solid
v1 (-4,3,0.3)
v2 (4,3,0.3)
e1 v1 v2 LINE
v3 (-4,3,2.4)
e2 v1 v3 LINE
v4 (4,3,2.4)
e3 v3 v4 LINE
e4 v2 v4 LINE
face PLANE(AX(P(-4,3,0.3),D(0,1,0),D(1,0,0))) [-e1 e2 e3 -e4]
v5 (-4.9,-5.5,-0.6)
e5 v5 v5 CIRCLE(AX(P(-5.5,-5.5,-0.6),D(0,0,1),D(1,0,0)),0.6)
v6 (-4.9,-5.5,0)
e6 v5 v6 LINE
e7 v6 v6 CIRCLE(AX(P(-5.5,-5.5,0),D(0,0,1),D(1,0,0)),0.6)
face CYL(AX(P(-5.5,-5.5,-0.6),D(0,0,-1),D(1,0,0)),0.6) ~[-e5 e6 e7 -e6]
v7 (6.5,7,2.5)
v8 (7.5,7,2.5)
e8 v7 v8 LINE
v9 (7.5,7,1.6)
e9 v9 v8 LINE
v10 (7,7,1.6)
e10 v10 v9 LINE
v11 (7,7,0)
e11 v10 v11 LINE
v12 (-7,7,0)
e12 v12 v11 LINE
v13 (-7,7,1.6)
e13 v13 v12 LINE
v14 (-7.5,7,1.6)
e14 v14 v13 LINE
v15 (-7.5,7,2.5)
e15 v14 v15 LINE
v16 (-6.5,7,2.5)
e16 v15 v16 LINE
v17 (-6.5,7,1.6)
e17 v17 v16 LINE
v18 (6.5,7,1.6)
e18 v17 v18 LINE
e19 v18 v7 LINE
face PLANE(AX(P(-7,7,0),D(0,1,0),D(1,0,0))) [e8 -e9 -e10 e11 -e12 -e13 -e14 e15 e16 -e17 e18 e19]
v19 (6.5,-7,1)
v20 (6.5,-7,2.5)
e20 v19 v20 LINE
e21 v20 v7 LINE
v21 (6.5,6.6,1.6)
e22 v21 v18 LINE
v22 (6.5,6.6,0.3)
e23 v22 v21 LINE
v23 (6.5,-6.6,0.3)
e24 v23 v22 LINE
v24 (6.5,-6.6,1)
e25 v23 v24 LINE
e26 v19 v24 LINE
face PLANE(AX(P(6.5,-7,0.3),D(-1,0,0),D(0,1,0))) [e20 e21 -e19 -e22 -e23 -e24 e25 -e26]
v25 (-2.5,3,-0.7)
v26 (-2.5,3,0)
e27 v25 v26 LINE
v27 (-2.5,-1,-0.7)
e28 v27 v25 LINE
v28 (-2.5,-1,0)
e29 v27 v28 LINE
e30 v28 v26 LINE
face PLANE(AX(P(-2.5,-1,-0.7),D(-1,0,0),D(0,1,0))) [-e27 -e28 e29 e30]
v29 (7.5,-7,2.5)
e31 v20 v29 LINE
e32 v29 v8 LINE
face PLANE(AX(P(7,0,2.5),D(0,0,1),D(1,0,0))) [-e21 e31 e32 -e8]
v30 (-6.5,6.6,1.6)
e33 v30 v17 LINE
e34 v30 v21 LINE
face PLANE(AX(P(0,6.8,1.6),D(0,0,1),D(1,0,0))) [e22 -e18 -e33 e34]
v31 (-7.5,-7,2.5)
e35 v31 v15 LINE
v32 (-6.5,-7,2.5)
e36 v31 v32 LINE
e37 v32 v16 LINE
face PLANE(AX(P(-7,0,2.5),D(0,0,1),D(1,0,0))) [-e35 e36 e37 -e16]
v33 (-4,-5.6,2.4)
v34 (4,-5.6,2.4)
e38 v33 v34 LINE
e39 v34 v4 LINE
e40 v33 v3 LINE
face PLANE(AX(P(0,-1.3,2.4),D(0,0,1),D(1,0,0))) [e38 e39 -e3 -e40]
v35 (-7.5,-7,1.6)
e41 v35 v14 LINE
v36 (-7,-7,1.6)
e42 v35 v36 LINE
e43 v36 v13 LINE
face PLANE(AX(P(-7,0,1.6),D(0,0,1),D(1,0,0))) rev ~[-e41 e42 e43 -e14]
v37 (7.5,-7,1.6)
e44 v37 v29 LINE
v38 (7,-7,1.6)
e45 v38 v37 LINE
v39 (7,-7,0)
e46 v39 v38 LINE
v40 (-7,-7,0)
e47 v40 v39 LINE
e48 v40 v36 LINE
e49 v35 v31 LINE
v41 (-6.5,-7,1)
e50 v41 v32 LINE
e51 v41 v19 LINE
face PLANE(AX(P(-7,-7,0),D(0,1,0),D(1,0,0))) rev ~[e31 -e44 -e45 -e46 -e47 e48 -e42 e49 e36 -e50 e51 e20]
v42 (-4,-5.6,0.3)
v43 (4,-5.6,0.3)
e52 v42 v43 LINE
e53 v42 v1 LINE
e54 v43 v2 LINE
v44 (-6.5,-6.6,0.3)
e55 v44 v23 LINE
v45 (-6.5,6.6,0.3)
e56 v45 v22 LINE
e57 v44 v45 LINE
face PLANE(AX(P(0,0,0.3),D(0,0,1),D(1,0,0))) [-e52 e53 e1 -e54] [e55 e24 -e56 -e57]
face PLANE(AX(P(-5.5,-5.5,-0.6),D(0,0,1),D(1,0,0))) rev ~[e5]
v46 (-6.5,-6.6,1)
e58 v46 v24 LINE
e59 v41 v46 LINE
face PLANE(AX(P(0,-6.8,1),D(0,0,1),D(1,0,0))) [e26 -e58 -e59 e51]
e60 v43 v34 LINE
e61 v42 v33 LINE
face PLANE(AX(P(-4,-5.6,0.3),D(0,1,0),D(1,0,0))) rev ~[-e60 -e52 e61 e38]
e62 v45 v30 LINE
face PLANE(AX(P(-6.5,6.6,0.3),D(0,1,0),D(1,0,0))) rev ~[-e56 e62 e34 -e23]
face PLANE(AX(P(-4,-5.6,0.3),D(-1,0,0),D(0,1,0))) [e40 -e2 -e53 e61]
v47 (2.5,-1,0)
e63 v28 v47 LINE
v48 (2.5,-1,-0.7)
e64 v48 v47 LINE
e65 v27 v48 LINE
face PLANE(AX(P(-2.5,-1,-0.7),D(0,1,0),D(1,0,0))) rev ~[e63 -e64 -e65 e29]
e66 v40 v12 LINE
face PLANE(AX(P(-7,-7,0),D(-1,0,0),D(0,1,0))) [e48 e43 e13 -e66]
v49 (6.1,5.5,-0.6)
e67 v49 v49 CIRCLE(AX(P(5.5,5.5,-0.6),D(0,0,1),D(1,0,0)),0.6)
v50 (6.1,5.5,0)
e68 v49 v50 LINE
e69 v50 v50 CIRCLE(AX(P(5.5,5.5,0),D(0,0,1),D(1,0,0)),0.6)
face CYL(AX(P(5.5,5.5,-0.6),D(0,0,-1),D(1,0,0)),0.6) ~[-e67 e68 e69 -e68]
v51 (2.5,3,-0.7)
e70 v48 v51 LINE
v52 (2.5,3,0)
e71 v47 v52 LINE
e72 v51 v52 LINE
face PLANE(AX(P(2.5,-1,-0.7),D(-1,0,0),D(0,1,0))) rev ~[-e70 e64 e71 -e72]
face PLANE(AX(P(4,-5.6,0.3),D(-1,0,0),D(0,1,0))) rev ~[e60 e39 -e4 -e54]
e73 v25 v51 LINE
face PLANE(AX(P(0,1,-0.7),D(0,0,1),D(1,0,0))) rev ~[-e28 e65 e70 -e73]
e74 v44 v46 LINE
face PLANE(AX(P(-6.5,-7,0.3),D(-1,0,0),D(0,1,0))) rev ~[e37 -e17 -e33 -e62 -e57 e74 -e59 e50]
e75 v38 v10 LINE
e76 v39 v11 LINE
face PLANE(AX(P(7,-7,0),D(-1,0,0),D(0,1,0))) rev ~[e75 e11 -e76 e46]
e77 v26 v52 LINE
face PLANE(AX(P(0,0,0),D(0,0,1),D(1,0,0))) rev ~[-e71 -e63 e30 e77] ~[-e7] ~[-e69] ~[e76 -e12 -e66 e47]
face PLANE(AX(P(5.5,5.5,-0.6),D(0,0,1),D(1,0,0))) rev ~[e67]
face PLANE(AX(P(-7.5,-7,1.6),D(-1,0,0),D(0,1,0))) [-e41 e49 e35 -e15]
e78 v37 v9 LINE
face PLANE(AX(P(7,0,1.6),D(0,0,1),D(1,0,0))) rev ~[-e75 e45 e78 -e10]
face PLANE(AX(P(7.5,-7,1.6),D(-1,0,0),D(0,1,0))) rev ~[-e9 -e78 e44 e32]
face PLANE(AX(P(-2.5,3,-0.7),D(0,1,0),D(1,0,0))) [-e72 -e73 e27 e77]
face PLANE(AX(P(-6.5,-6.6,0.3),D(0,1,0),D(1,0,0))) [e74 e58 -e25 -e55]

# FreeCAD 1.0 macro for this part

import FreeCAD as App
import Part
import Sketcher
from FreeCAD import Vector
Q = App.Units.Quantity

doc = App.newDocument("Part")
body = doc.addObject("PartDesign::Body", "Body")

# Sketch on XY plane
sketch1 = body.newObject("Sketcher::SketchObject", "Sketch")
sketch1.AttachmentSupport = (doc.getObject("XY_Plane"), [""])
sketch1.MapMode = "FlatFace"
sketch1.AttachmentOffset = App.Placement(Vector(0, 0, 0.3), App.Rotation())
sketch1.addGeometry([
    Part.LineSegment(Vector(-6.5, -6.6, 0), Vector(-6.5, -7, 0)),
    Part.LineSegment(Vector(-6.5, -7, 0), Vector(6.5, -7, 0)),
    Part.LineSegment(Vector(6.5, -7, 0), Vector(6.5, -6.6, 0)),
    Part.LineSegment(Vector(6.5, -6.6, 0), Vector(-6.5, -6.6, 0)),
], False)
sketch1.addConstraint([
    Sketcher.Constraint("Coincident", 0, 2, 1, 1),
    Sketcher.Constraint("Coincident", 1, 2, 2, 1),
    Sketcher.Constraint("Coincident", 2, 2, 3, 1),
    Sketcher.Constraint("Coincident", 3, 2, 0, 1),
    Sketcher.Constraint("Vertical", 0),
    Sketcher.Constraint("Horizontal", 1),
    Sketcher.Constraint("Vertical", 2),
    Sketcher.Constraint("Horizontal", 3),
    Sketcher.Constraint("DistanceX", 1, 1, 1, 2, Q("13 mm")),
    Sketcher.Constraint("DistanceY", 0, 2, 0, 1, Q("0.4 mm")),
    Sketcher.Constraint("DistanceY", 0, 2, -1, 1, Q("7 mm")),
    Sketcher.Constraint("DistanceX", 0, 2, -1, 1, Q("6.5 mm")),
])
pad1 = body.newObject("PartDesign::Pad", "Pad")
pad1.Profile = sketch1
pad1.Length = 0.7
body2 = doc.addObject("PartDesign::Body", "Body001")

# Sketch on XY plane
sketch2 = body2.newObject("Sketcher::SketchObject", "Sketch001")
sketch2.AttachmentSupport = (doc.getObject("XY_Plane001"), [""])
sketch2.MapMode = "FlatFace"
sketch2.AttachmentOffset = App.Placement(Vector(0, 0, 0.3), App.Rotation())
sketch2.addGeometry([
    Part.LineSegment(Vector(-6.5, 7, 0), Vector(-6.5, 6.6, 0)),
    Part.LineSegment(Vector(-6.5, 6.6, 0), Vector(6.5, 6.6, 0)),
    Part.LineSegment(Vector(6.5, 6.6, 0), Vector(6.5, 7, 0)),
    Part.LineSegment(Vector(6.5, 7, 0), Vector(-6.5, 7, 0)),
], False)
sketch2.addConstraint([
    Sketcher.Constraint("Coincident", 0, 2, 1, 1),
    Sketcher.Constraint("Coincident", 1, 2, 2, 1),
    Sketcher.Constraint("Coincident", 2, 2, 3, 1),
    Sketcher.Constraint("Coincident", 3, 2, 0, 1),
    Sketcher.Constraint("Vertical", 0),
    Sketcher.Constraint("Horizontal", 1),
    Sketcher.Constraint("Vertical", 2),
    Sketcher.Constraint("Horizontal", 3),
    Sketcher.Constraint("DistanceX", 1, 1, 1, 2, Q("13 mm")),
    Sketcher.Constraint("DistanceY", 0, 2, 0, 1, Q("0.4 mm")),
    Sketcher.Constraint("DistanceY", -1, 1, 2, 2, Q("7 mm")),
    Sketcher.Constraint("DistanceX", 0, 2, -1, 1, Q("6.5 mm")),
])
pad2 = body2.newObject("PartDesign::Pad", "Pad001")
pad2.Profile = sketch2
pad2.Length = 1.3
body3 = doc.addObject("PartDesign::Body", "Body002")

# Sketch on XY plane
sketch3 = body3.newObject("Sketcher::SketchObject", "Sketch002")
sketch3.AttachmentSupport = (doc.getObject("XY_Plane002"), [""])
sketch3.MapMode = "FlatFace"
sketch3.AttachmentOffset = App.Placement(Vector(0, 0, 1.6), App.Rotation())
sketch3.addGeometry([
    Part.LineSegment(Vector(6.5, 7, 0), Vector(6.5, -7, 0)),
    Part.LineSegment(Vector(6.5, -7, 0), Vector(7.5, -7, 0)),
    Part.LineSegment(Vector(7.5, -7, 0), Vector(7.5, 7, 0)),
    Part.LineSegment(Vector(7.5, 7, 0), Vector(6.5, 7, 0)),
], False)
sketch3.addConstraint([
    Sketcher.Constraint("Coincident", 0, 2, 1, 1),
    Sketcher.Constraint("Coincident", 1, 2, 2, 1),
    Sketcher.Constraint("Coincident", 2, 2, 3, 1),
    Sketcher.Constraint("Coincident", 3, 2, 0, 1),
    Sketcher.Constraint("Vertical", 0),
    Sketcher.Constraint("Horizontal", 1),
    Sketcher.Constraint("Vertical", 2),
    Sketcher.Constraint("Horizontal", 3),
    Sketcher.Constraint("DistanceX", 1, 1, 1, 2, Q("1 mm")),
    Sketcher.Constraint("DistanceY", 0, 2, 0, 1, Q("14 mm")),
    Sketcher.Constraint("DistanceY", 0, 2, -1, 1, Q("7 mm")),
    Sketcher.Constraint("DistanceX", -1, 1, 0, 2, Q("6.5 mm")),
])
pad3 = body3.newObject("PartDesign::Pad", "Pad002")
pad3.Profile = sketch3
pad3.Length = 0.9
body4 = doc.addObject("PartDesign::Body", "Body003")

# Sketch on XY plane
sketch4 = body4.newObject("Sketcher::SketchObject", "Sketch003")
sketch4.AttachmentSupport = (doc.getObject("XY_Plane003"), [""])
sketch4.MapMode = "FlatFace"
sketch4.AttachmentOffset = App.Placement(Vector(0, 0, 1.6), App.Rotation())
sketch4.addGeometry([
    Part.LineSegment(Vector(-7.5, 7, 0), Vector(-7.5, -7, 0)),
    Part.LineSegment(Vector(-7.5, -7, 0), Vector(-6.5, -7, 0)),
    Part.LineSegment(Vector(-6.5, -7, 0), Vector(-6.5, 7, 0)),
    Part.LineSegment(Vector(-6.5, 7, 0), Vector(-7.5, 7, 0)),
], False)
sketch4.addConstraint([
    Sketcher.Constraint("Coincident", 0, 2, 1, 1),
    Sketcher.Constraint("Coincident", 1, 2, 2, 1),
    Sketcher.Constraint("Coincident", 2, 2, 3, 1),
    Sketcher.Constraint("Coincident", 3, 2, 0, 1),
    Sketcher.Constraint("Vertical", 0),
    Sketcher.Constraint("Horizontal", 1),
    Sketcher.Constraint("Vertical", 2),
    Sketcher.Constraint("Horizontal", 3),
    Sketcher.Constraint("DistanceX", 1, 1, 1, 2, Q("1 mm")),
    Sketcher.Constraint("DistanceY", 0, 2, 0, 1, Q("14 mm")),
    Sketcher.Constraint("DistanceY", 0, 2, -1, 1, Q("7 mm")),
    Sketcher.Constraint("DistanceX", 0, 2, -1, 1, Q("7.5 mm")),
])
pad4 = body4.newObject("PartDesign::Pad", "Pad003")
pad4.Profile = sketch4
pad4.Length = 0.9
body5 = doc.addObject("PartDesign::Body", "Body004")

# Sketch on XY plane
sketch5 = body5.newObject("Sketcher::SketchObject", "Sketch004")
sketch5.AttachmentSupport = (doc.getObject("XY_Plane004"), [""])
sketch5.MapMode = "FlatFace"
sketch5.AttachmentOffset = App.Placement(Vector(0, 0, 0.3), App.Rotation())
sketch5.addGeometry([
    Part.LineSegment(Vector(6.5, 7, 0), Vector(6.5, -7, 0)),
    Part.LineSegment(Vector(6.5, -7, 0), Vector(7, -7, 0)),
    Part.LineSegment(Vector(7, -7, 0), Vector(7, 7, 0)),
    Part.LineSegment(Vector(7, 7, 0), Vector(6.5, 7, 0)),
], False)
sketch5.addConstraint([
    Sketcher.Constraint("Coincident", 0, 2, 1, 1),
    Sketcher.Constraint("Coincident", 1, 2, 2, 1),
    Sketcher.Constraint("Coincident", 2, 2, 3, 1),
    Sketcher.Constraint("Coincident", 3, 2, 0, 1),
    Sketcher.Constraint("Vertical", 0),
    Sketcher.Constraint("Horizontal", 1),
    Sketcher.Constraint("Vertical", 2),
    Sketcher.Constraint("Horizontal", 3),
    Sketcher.Constraint("DistanceY", 0, 2, 0, 1, Q("14 mm")),
    Sketcher.Constraint("DistanceX", 1, 1, 1, 2, Q("0.5 mm")),
    Sketcher.Constraint("DistanceY", 0, 2, -1, 1, Q("7 mm")),
    Sketcher.Constraint("DistanceX", -1, 1, 1, 2, Q("7 mm")),
])
pad5 = body5.newObject("PartDesign::Pad", "Pad004")
pad5.Profile = sketch5
pad5.Length = 1.3
body6 = doc.addObject("PartDesign::Body", "Body005")

# Sketch on XY plane
sketch6 = body6.newObject("Sketcher::SketchObject", "Sketch005")
sketch6.AttachmentSupport = (doc.getObject("XY_Plane005"), [""])
sketch6.MapMode = "FlatFace"
sketch6.AttachmentOffset = App.Placement(Vector(0, 0, 0.3), App.Rotation())
sketch6.addGeometry([
    Part.LineSegment(Vector(-7, 7, 0), Vector(-7, -7, 0)),
    Part.LineSegment(Vector(-7, -7, 0), Vector(-6.5, -7, 0)),
    Part.LineSegment(Vector(-6.5, -7, 0), Vector(-6.5, 7, 0)),
    Part.LineSegment(Vector(-6.5, 7, 0), Vector(-7, 7, 0)),
], False)
sketch6.addConstraint([
    Sketcher.Constraint("Coincident", 0, 2, 1, 1),
    Sketcher.Constraint("Coincident", 1, 2, 2, 1),
    Sketcher.Constraint("Coincident", 2, 2, 3, 1),
    Sketcher.Constraint("Coincident", 3, 2, 0, 1),
    Sketcher.Constraint("Vertical", 0),
    Sketcher.Constraint("Horizontal", 1),
    Sketcher.Constraint("Vertical", 2),
    Sketcher.Constraint("Horizontal", 3),
    Sketcher.Constraint("DistanceY", 0, 2, 0, 1, Q("14 mm")),
    Sketcher.Constraint("DistanceX", 1, 1, 1, 2, Q("0.5 mm")),
    Sketcher.Constraint("DistanceX", 0, 2, -1, 1, Q("7 mm")),
    Sketcher.Constraint("DistanceY", 0, 2, -1, 1, Q("7 mm")),
])
pad6 = body6.newObject("PartDesign::Pad", "Pad005")
pad6.Profile = sketch6
pad6.Length = 1.3
body7 = doc.addObject("PartDesign::Body", "Body006")

# Sketch on XY plane
sketch7 = body7.newObject("Sketcher::SketchObject", "Sketch006")
sketch7.AttachmentSupport = (doc.getObject("XY_Plane006"), [""])
sketch7.MapMode = "FlatFace"
sketch7.addGeometry([
    Part.LineSegment(Vector(-7, 7, 0), Vector(-7, -7, 0)),
    Part.LineSegment(Vector(-7, -7, 0), Vector(7, -7, 0)),
    Part.LineSegment(Vector(7, -7, 0), Vector(7, 7, 0)),
    Part.LineSegment(Vector(7, 7, 0), Vector(-7, 7, 0)),
], False)
sketch7.addConstraint([
    Sketcher.Constraint("Coincident", 0, 2, 1, 1),
    Sketcher.Constraint("Coincident", 1, 2, 2, 1),
    Sketcher.Constraint("Coincident", 2, 2, 3, 1),
    Sketcher.Constraint("Coincident", 3, 2, 0, 1),
    Sketcher.Constraint("Vertical", 0),
    Sketcher.Constraint("Horizontal", 1),
    Sketcher.Constraint("Vertical", 2),
    Sketcher.Constraint("Horizontal", 3),
    Sketcher.Constraint("Symmetric", 0, 2, 2, 2, -1, 1),
    Sketcher.Constraint("Equal", 3, 0),
    Sketcher.Constraint("DistanceX", 1, 1, 1, 2, Q("14 mm")),
])
pad7 = body7.newObject("PartDesign::Pad", "Pad006")
pad7.Profile = sketch7
pad7.Length = 0.3
body8 = doc.addObject("PartDesign::Body", "Body007")

# Sketch on XY plane
sketch8 = body8.newObject("Sketcher::SketchObject", "Sketch007")
sketch8.AttachmentSupport = (doc.getObject("XY_Plane007"), [""])
sketch8.MapMode = "FlatFace"
sketch8.AttachmentOffset = App.Placement(Vector(0, 0, -0.6), App.Rotation())
sketch8.addGeometry(Part.Circle(Vector(-5.5, -5.5, 0), Vector(0, 0, 1), 0.6), False)
sketch8.addConstraint([
    Sketcher.Constraint("Diameter", 0, Q("1.2 mm")),
    Sketcher.Constraint("DistanceX", 0, 3, -1, 1, Q("5.5 mm")),
    Sketcher.Constraint("DistanceY", 0, 3, -1, 1, Q("5.5 mm")),
])
pad8 = body8.newObject("PartDesign::Pad", "Pad007")
pad8.Profile = sketch8
pad8.Length = 0.6
body9 = doc.addObject("PartDesign::Body", "Body008")

# Sketch on XY plane
sketch9 = body9.newObject("Sketcher::SketchObject", "Sketch008")
sketch9.AttachmentSupport = (doc.getObject("XY_Plane008"), [""])
sketch9.MapMode = "FlatFace"
sketch9.AttachmentOffset = App.Placement(Vector(0, 0, -0.6), App.Rotation())
sketch9.addGeometry(Part.Circle(Vector(5.5, 5.5, 0), Vector(0, 0, 1), 0.6), False)
sketch9.addConstraint([
    Sketcher.Constraint("Diameter", 0, Q("1.2 mm")),
    Sketcher.Constraint("DistanceX", -1, 1, 0, 3, Q("5.5 mm")),
    Sketcher.Constraint("DistanceY", -1, 1, 0, 3, Q("5.5 mm")),
])
pad9 = body9.newObject("PartDesign::Pad", "Pad008")
pad9.Profile = sketch9
pad9.Length = 0.6
body10 = doc.addObject("PartDesign::Body", "Body009")

# Sketch on XY plane
sketch10 = body10.newObject("Sketcher::SketchObject", "Sketch009")
sketch10.AttachmentSupport = (doc.getObject("XY_Plane009"), [""])
sketch10.MapMode = "FlatFace"
sketch10.AttachmentOffset = App.Placement(Vector(0, 0, 0.3), App.Rotation())
sketch10.addGeometry([
    Part.LineSegment(Vector(-4, 3, 0), Vector(-4, -5.6, 0)),
    Part.LineSegment(Vector(-4, -5.6, 0), Vector(4, -5.6, 0)),
    Part.LineSegment(Vector(4, -5.6, 0), Vector(4, 3, 0)),
    Part.LineSegment(Vector(4, 3, 0), Vector(-4, 3, 0)),
], False)
sketch10.addConstraint([
    Sketcher.Constraint("Coincident", 0, 2, 1, 1),
    Sketcher.Constraint("Coincident", 1, 2, 2, 1),
    Sketcher.Constraint("Coincident", 2, 2, 3, 1),
    Sketcher.Constraint("Coincident", 3, 2, 0, 1),
    Sketcher.Constraint("Vertical", 0),
    Sketcher.Constraint("Horizontal", 1),
    Sketcher.Constraint("Vertical", 2),
    Sketcher.Constraint("Horizontal", 3),
    Sketcher.Constraint("DistanceX", 1, 1, 1, 2, Q("8 mm")),
    Sketcher.Constraint("DistanceY", 0, 2, 0, 1, Q("8.6 mm")),
    Sketcher.Constraint("DistanceX", 0, 2, -1, 1, Q("4 mm")),
    Sketcher.Constraint("DistanceY", -1, 1, 2, 2, Q("3 mm")),
])
pad10 = body10.newObject("PartDesign::Pad", "Pad009")
pad10.Profile = sketch10
pad10.Length = 2.1
body11 = doc.addObject("PartDesign::Body", "Body010")
body11.AllowCompound = True

# Sketch on XY plane
sketch11 = body11.newObject("Sketcher::SketchObject", "Sketch010")
sketch11.AttachmentSupport = (doc.getObject("XY_Plane010"), [""])
sketch11.MapMode = "FlatFace"
sketch11.AttachmentOffset = App.Placement(Vector(0, 0, -0.7), App.Rotation())
sketch11.addGeometry([
    Part.LineSegment(Vector(-2.5, 3, 0), Vector(-2.5, -1, 0)),
    Part.LineSegment(Vector(-2.5, -1, 0), Vector(2.5, -1, 0)),
    Part.LineSegment(Vector(2.5, -1, 0), Vector(2.5, 3, 0)),
    Part.LineSegment(Vector(2.5, 3, 0), Vector(-2.5, 3, 0)),
], False)
sketch11.addConstraint([
    Sketcher.Constraint("Coincident", 0, 2, 1, 1),
    Sketcher.Constraint("Coincident", 1, 2, 2, 1),
    Sketcher.Constraint("Coincident", 2, 2, 3, 1),
    Sketcher.Constraint("Coincident", 3, 2, 0, 1),
    Sketcher.Constraint("Vertical", 0),
    Sketcher.Constraint("Horizontal", 1),
    Sketcher.Constraint("Vertical", 2),
    Sketcher.Constraint("Horizontal", 3),
    Sketcher.Constraint("DistanceX", 1, 1, 1, 2, Q("5 mm")),
    Sketcher.Constraint("DistanceY", 0, 2, 0, 1, Q("4 mm")),
    Sketcher.Constraint("DistanceY", 0, 2, -1, 1, Q("1 mm")),
    Sketcher.Constraint("DistanceX", 0, 2, -1, 1, Q("2.5 mm")),
])
pad11 = body11.newObject("PartDesign::Pad", "Pad010")
pad11.Profile = sketch11
pad11.Length = 0.7
doc.recompute()

boolean = body11.newObject("PartDesign::Boolean", "Boolean")
boolean.Type = "Fuse"
boolean.addObjects([body])
doc.recompute()

boolean2 = body11.newObject("PartDesign::Boolean", "Boolean001")
boolean2.Type = "Fuse"
boolean2.addObjects([body2])
doc.recompute()

boolean3 = body11.newObject("PartDesign::Boolean", "Boolean002")
boolean3.Type = "Fuse"
boolean3.addObjects([body3])
doc.recompute()

boolean4 = body11.newObject("PartDesign::Boolean", "Boolean003")
boolean4.Type = "Fuse"
boolean4.addObjects([body4])
doc.recompute()

boolean5 = body11.newObject("PartDesign::Boolean", "Boolean004")
boolean5.Type = "Fuse"
boolean5.addObjects([body5])
doc.recompute()

boolean6 = body11.newObject("PartDesign::Boolean", "Boolean005")
boolean6.Type = "Fuse"
boolean6.addObjects([body6])
doc.recompute()

boolean7 = body11.newObject("PartDesign::Boolean", "Boolean006")
boolean7.Type = "Fuse"
boolean7.addObjects([body7])
doc.recompute()

boolean8 = body11.newObject("PartDesign::Boolean", "Boolean007")
boolean8.Type = "Fuse"
boolean8.addObjects([body8])
doc.recompute()

boolean9 = body11.newObject("PartDesign::Boolean", "Boolean008")
boolean9.Type = "Fuse"
boolean9.addObjects([body9])
doc.recompute()

boolean10 = body11.newObject("PartDesign::Boolean", "Boolean009")
boolean10.Type = "Fuse"
boolean10.addObjects([body10])

doc.recompute()
